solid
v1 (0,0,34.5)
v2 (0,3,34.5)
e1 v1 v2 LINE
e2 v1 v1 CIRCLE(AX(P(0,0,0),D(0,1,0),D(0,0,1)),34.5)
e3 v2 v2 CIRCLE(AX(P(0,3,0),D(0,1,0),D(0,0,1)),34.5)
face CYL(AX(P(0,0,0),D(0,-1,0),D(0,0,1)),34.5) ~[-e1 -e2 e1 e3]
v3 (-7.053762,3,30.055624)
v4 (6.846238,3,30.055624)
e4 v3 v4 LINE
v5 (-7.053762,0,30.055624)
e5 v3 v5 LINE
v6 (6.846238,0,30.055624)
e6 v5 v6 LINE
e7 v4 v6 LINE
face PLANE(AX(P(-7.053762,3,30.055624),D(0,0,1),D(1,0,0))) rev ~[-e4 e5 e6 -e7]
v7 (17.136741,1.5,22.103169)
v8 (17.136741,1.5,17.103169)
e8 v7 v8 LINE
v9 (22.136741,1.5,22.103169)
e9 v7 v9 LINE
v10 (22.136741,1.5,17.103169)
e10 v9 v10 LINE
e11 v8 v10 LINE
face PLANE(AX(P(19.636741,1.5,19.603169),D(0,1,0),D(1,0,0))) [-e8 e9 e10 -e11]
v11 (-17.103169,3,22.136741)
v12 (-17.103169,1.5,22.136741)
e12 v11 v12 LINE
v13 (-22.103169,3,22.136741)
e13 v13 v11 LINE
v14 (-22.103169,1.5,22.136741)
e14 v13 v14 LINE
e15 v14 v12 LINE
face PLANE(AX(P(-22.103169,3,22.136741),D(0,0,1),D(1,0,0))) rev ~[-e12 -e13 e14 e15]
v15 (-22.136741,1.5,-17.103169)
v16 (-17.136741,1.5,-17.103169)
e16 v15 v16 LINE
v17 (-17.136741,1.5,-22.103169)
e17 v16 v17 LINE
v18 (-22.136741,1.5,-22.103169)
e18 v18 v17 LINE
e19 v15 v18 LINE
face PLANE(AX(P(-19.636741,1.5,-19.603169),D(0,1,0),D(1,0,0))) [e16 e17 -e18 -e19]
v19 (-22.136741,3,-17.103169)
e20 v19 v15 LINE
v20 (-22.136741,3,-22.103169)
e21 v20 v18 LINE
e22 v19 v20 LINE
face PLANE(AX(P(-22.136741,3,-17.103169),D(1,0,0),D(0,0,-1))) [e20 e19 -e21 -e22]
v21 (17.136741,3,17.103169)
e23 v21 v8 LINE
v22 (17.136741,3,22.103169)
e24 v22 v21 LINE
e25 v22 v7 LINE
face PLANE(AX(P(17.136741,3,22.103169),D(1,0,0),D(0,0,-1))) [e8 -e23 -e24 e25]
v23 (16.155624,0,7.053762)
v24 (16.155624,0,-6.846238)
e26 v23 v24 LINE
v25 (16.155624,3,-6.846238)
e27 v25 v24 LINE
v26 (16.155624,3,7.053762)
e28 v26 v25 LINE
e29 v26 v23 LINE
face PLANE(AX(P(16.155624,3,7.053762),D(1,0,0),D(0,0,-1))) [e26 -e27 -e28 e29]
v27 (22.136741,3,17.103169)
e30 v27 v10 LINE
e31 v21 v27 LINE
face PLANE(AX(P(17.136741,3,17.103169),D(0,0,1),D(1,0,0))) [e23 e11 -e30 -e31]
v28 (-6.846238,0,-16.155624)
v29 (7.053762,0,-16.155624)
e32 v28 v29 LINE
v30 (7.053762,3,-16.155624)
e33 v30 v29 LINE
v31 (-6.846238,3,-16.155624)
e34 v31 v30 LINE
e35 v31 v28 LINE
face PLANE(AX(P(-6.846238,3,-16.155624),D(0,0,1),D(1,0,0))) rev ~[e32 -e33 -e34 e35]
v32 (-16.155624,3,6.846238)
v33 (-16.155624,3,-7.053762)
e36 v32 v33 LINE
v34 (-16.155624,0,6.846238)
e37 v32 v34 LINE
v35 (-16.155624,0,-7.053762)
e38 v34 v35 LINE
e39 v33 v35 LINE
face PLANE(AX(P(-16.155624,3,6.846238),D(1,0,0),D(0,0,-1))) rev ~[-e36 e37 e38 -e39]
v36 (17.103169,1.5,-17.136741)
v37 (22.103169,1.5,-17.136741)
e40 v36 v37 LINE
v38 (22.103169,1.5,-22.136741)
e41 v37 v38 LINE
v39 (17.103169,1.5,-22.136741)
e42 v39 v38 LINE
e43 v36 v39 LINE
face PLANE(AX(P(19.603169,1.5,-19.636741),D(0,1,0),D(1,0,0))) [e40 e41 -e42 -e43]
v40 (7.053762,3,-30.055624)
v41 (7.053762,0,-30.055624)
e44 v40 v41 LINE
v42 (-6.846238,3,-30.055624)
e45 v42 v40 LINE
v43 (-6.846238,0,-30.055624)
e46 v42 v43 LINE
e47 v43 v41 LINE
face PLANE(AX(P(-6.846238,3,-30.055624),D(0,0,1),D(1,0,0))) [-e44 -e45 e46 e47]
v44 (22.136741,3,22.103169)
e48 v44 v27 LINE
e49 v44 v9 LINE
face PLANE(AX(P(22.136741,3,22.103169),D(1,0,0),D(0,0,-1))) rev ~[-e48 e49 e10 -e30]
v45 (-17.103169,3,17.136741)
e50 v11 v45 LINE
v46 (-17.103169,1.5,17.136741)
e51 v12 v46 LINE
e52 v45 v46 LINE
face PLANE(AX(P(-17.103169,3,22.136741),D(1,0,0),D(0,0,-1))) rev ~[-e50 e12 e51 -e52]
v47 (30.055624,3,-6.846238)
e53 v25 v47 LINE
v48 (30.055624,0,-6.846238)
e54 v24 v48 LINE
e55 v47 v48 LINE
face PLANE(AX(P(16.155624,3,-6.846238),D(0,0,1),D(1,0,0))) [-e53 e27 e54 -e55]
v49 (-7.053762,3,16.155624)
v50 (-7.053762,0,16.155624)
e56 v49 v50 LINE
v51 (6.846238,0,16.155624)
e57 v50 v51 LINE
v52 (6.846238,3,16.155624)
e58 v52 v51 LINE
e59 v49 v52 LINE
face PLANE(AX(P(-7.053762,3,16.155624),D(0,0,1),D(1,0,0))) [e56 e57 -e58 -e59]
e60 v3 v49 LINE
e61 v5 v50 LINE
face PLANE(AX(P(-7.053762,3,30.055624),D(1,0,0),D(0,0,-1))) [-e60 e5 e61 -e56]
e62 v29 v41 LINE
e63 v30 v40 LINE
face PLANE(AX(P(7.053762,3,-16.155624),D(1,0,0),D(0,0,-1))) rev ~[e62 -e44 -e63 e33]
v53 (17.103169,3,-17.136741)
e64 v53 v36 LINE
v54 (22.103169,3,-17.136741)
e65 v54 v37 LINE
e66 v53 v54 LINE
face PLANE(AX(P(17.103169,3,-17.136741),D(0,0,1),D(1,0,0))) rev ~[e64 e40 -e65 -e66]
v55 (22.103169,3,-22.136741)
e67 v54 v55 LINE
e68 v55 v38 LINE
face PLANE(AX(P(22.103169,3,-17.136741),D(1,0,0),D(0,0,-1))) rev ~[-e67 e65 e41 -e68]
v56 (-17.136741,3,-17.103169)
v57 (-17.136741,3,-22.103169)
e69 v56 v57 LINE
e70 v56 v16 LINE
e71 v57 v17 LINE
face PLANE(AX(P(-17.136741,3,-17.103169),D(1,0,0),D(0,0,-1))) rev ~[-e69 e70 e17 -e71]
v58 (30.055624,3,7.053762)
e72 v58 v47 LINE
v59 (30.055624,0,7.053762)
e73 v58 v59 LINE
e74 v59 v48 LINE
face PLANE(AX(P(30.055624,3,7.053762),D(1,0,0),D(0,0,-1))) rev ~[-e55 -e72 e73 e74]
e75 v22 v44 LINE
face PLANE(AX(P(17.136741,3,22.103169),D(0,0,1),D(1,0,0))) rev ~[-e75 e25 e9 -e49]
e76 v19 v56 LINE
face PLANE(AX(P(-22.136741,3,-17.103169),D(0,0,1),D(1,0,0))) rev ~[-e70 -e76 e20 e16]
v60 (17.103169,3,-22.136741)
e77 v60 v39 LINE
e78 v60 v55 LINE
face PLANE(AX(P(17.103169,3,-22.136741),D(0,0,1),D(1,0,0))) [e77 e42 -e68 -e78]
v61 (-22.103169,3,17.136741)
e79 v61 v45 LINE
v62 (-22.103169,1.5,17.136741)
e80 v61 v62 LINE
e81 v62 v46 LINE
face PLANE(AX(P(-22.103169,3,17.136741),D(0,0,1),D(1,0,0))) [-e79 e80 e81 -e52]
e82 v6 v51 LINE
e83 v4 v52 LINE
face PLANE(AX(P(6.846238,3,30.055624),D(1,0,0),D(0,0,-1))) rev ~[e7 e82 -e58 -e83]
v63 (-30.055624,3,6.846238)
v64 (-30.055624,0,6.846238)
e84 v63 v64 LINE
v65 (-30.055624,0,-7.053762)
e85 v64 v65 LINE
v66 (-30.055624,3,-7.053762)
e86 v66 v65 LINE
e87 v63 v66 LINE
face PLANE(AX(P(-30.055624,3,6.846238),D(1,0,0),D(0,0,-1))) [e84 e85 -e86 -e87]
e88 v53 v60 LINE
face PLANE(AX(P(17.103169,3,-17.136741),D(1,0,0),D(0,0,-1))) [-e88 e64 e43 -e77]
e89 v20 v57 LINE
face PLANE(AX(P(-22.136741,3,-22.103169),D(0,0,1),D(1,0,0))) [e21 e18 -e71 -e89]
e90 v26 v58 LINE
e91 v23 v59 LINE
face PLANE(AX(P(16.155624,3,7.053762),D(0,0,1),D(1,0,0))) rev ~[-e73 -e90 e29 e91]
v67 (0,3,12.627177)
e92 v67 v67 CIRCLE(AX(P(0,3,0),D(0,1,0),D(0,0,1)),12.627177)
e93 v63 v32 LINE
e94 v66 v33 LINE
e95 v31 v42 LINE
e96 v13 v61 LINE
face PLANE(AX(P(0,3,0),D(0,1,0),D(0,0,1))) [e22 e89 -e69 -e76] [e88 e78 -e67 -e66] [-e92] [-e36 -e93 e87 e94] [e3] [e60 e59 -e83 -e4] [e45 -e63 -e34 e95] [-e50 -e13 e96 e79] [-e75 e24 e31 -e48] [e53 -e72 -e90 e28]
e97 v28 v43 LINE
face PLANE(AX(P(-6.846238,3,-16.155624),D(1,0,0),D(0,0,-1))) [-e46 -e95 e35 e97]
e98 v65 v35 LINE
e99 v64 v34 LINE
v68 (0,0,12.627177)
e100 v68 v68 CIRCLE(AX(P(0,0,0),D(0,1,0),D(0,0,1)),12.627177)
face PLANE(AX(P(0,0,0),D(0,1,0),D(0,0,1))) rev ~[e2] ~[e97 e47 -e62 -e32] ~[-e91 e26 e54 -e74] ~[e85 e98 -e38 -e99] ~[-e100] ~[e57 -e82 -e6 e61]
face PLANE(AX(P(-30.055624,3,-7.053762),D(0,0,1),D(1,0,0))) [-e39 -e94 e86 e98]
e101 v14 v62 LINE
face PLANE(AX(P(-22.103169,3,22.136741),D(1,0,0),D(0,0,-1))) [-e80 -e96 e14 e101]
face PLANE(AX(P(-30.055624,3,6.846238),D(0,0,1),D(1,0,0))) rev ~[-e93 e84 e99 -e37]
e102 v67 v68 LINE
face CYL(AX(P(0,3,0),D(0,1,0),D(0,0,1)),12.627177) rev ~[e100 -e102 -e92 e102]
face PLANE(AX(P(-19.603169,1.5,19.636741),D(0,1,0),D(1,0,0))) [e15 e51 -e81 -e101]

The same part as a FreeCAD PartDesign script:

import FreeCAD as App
import Part
import Sketcher

V = App.Vector
Q = App.Units.Quantity

doc = App.newDocument("Part")
params = doc.addObject("Spreadsheet::Sheet", "Params")
for row, (alias, value) in enumerate([
    ("sketch1_diameter", "69 mm"),
    ("pad1_length", "3 mm"),
    ("sketch2_width", "13.9 mm"),
    ("sketch4_width", "5 mm"),
    ("pocket3_length", "1.5 mm"),
], start=1):
    params.set(f"A{row}", alias)
    params.set(f"B{row}", "=" + value)
    params.setAlias(f"B{row}", alias)

body = doc.addObject("PartDesign::Body", "Body")

# Sketch on XZ plane
sketch1 = body.newObject("Sketcher::SketchObject", "Sketch")
sketch1.AttachmentSupport = (doc.getObject("XZ_Plane"), [""])
sketch1.MapMode = "FlatFace"
sketch1.addGeometry(Part.Circle(V(0, 0, 0), V(0, 0, 1), 34), False)
sketch1.addConstraint(Sketcher.Constraint("Coincident", 0, 3, -1, 1))
sketch1.addConstraint(Sketcher.Constraint("Diameter", 0, Q("69 mm")))
sketch1.setExpression("Constraints[1]", "Params.sketch1_diameter")
pad1 = body.newObject("PartDesign::Pad", "Pad")
pad1.Profile = sketch1
pad1.setExpression("Length", "Params.pad1_length")
pad1.Reversed = True

# Sketch on XZ plane
sketch2 = body.newObject("Sketcher::SketchObject", "Sketch001")
sketch2.AttachmentSupport = (doc.getObject("XZ_Plane"), [""])
sketch2.MapMode = "FlatFace"
sketch2.AttachmentOffset = App.Placement(V(0, 0, -3), App.Rotation())
sketch2.addGeometry(Part.LineSegment(V(16, -7, 0), V(16, 7, 0)), False)
sketch2.addGeometry(Part.LineSegment(V(16, 7, 0), V(30, 7, 0)), False)
sketch2.addGeometry(Part.LineSegment(V(30, 7, 0), V(30, -7, 0)), False)
sketch2.addGeometry(Part.LineSegment(V(30, -7, 0), V(16, -7, 0)), False)
sketch2.addGeometry(Part.LineSegment(V(-7, -30, 0), V(-7, -16, 0)), False)
sketch2.addGeometry(Part.LineSegment(V(-7, -16, 0), V(7, -16, 0)), False)
sketch2.addGeometry(Part.LineSegment(V(7, -16, 0), V(7, -30, 0)), False)
sketch2.addGeometry(Part.LineSegment(V(7, -30, 0), V(-7, -30, 0)), False)
sketch2.addGeometry(Part.LineSegment(V(-7, 16, 0), V(-7, 30, 0)), False)
sketch2.addGeometry(Part.LineSegment(V(-7, 30, 0), V(7, 30, 0)), False)
sketch2.addGeometry(Part.LineSegment(V(7, 30, 0), V(7, 16, 0)), False)
sketch2.addGeometry(Part.LineSegment(V(7, 16, 0), V(-7, 16, 0)), False)
sketch2.addGeometry(Part.LineSegment(V(-30, -7, 0), V(-30, 7, 0)), False)
sketch2.addGeometry(Part.LineSegment(V(-30, 7, 0), V(-16, 7, 0)), False)
sketch2.addGeometry(Part.LineSegment(V(-16, 7, 0), V(-16, -7, 0)), False)
sketch2.addGeometry(Part.LineSegment(V(-16, -7, 0), V(-30, -7, 0)), False)
sketch2.addConstraint(Sketcher.Constraint("Coincident", 0, 2, 1, 1))
sketch2.addConstraint(Sketcher.Constraint("Coincident", 1, 2, 2, 1))
sketch2.addConstraint(Sketcher.Constraint("Coincident", 2, 2, 3, 1))
sketch2.addConstraint(Sketcher.Constraint("Coincident", 3, 2, 0, 1))
sketch2.addConstraint(Sketcher.Constraint("Coincident", 4, 2, 5, 1))
sketch2.addConstraint(Sketcher.Constraint("Coincident", 5, 2, 6, 1))
sketch2.addConstraint(Sketcher.Constraint("Coincident", 6, 2, 7, 1))
sketch2.addConstraint(Sketcher.Constraint("Coincident", 7, 2, 4, 1))
sketch2.addConstraint(Sketcher.Constraint("Coincident", 8, 2, 9, 1))
sketch2.addConstraint(Sketcher.Constraint("Coincident", 9, 2, 10, 1))
sketch2.addConstraint(Sketcher.Constraint("Coincident", 10, 2, 11, 1))
sketch2.addConstraint(Sketcher.Constraint("Coincident", 11, 2, 8, 1))
sketch2.addConstraint(Sketcher.Constraint("Coincident", 12, 2, 13, 1))
sketch2.addConstraint(Sketcher.Constraint("Coincident", 13, 2, 14, 1))
sketch2.addConstraint(Sketcher.Constraint("Coincident", 14, 2, 15, 1))
sketch2.addConstraint(Sketcher.Constraint("Coincident", 15, 2, 12, 1))
sketch2.addConstraint(Sketcher.Constraint("Vertical", 0))
sketch2.addConstraint(Sketcher.Constraint("Horizontal", 1))
sketch2.addConstraint(Sketcher.Constraint("Vertical", 2))
sketch2.addConstraint(Sketcher.Constraint("Horizontal", 3))
sketch2.addConstraint(Sketcher.Constraint("Vertical", 4))
sketch2.addConstraint(Sketcher.Constraint("Horizontal", 5))
sketch2.addConstraint(Sketcher.Constraint("Vertical", 6))
sketch2.addConstraint(Sketcher.Constraint("Horizontal", 7))
sketch2.addConstraint(Sketcher.Constraint("Vertical", 8))
sketch2.addConstraint(Sketcher.Constraint("Horizontal", 9))
sketch2.addConstraint(Sketcher.Constraint("Vertical", 10))
sketch2.addConstraint(Sketcher.Constraint("Horizontal", 11))
sketch2.addConstraint(Sketcher.Constraint("Vertical", 12))
sketch2.addConstraint(Sketcher.Constraint("Horizontal", 13))
sketch2.addConstraint(Sketcher.Constraint("Vertical", 14))
sketch2.addConstraint(Sketcher.Constraint("Horizontal", 15))
sketch2.addConstraint(Sketcher.Constraint("Symmetric", 6, 2, 8, 2, -1, 1))
sketch2.addConstraint(Sketcher.Constraint("Symmetric", 4, 2, 10, 2, -1, 1))
sketch2.addConstraint(Sketcher.Constraint("Symmetric", 2, 2, 12, 2, -1, 1))
sketch2.addConstraint(Sketcher.Constraint("Symmetric", 0, 2, 14, 2, -1, 1))
sketch2.addConstraint(Sketcher.Constraint("Equal", 3, 5))
sketch2.addConstraint(Sketcher.Constraint("Equal", 15, 0))
sketch2.addConstraint(Sketcher.Constraint("Equal", 2, 4))
sketch2.addConstraint(Sketcher.Constraint("DistanceX", 1, 1, 1, 2, Q("13.9 mm")))
sketch2.addConstraint(Sketcher.Constraint("DistanceY", -1, 1, 0, 2, Q("7.053762 mm")))
sketch2.addConstraint(Sketcher.Constraint("DistanceX", 4, 2, -1, 1, Q("6.846238 mm")))
sketch2.addConstraint(Sketcher.Constraint("DistanceY", 4, 2, 8, 2, Q("46.211249 mm")))
sketch2.addConstraint(Sketcher.Constraint("DistanceX", -1, 1, 0, 2, Q("16.155624 mm")))
sketch2.setExpression("Constraints[39]", "Params.sketch2_width")
pocket1 = body.newObject("PartDesign::Pocket", "Pocket")
pocket1.Profile = sketch2
pocket1.Type = "ThroughAll"
pocket1.Reversed = True

# Sketch on XZ plane
sketch3 = body.newObject("Sketcher::SketchObject", "Sketch002")
sketch3.AttachmentSupport = (doc.getObject("XZ_Plane"), [""])
sketch3.MapMode = "FlatFace"
sketch3.AttachmentOffset = App.Placement(V(0, 0, -3), App.Rotation())
sketch3.addGeometry(Part.Circle(V(0, 0, 0), V(0, 0, 1), 13), False)
sketch3.addConstraint(Sketcher.Constraint("Coincident", 0, 3, -1, 1))
sketch3.addConstraint(Sketcher.Constraint("Diameter", 0, Q("25.254355 mm")))
pocket2 = body.newObject("PartDesign::Pocket", "Pocket001")
pocket2.Profile = sketch3
pocket2.Type = "ThroughAll"
pocket2.Reversed = True

# Sketch on XZ plane
sketch4 = body.newObject("Sketcher::SketchObject", "Sketch003")
sketch4.AttachmentSupport = (doc.getObject("XZ_Plane"), [""])
sketch4.MapMode = "FlatFace"
sketch4.AttachmentOffset = App.Placement(V(0, 0, -3), App.Rotation())
sketch4.addGeometry(Part.LineSegment(V(17, -22, 0), V(17, -17, 0)), False)
sketch4.addGeometry(Part.LineSegment(V(17, -17, 0), V(22, -17, 0)), False)
sketch4.addGeometry(Part.LineSegment(V(22, -17, 0), V(22, -22, 0)), False)
sketch4.addGeometry(Part.LineSegment(V(22, -22, 0), V(17, -22, 0)), False)
sketch4.addGeometry(Part.LineSegment(V(-22, -22, 0), V(-22, -17, 0)), False)
sketch4.addGeometry(Part.LineSegment(V(-22, -17, 0), V(-17, -17, 0)), False)
sketch4.addGeometry(Part.LineSegment(V(-17, -17, 0), V(-17, -22, 0)), False)
sketch4.addGeometry(Part.LineSegment(V(-17, -22, 0), V(-22, -22, 0)), False)
sketch4.addGeometry(Part.LineSegment(V(17, 17, 0), V(17, 22, 0)), False)
sketch4.addGeometry(Part.LineSegment(V(17, 22, 0), V(22, 22, 0)), False)
sketch4.addGeometry(Part.LineSegment(V(22, 22, 0), V(22, 17, 0)), False)
sketch4.addGeometry(Part.LineSegment(V(22, 17, 0), V(17, 17, 0)), False)
sketch4.addGeometry(Part.LineSegment(V(-22, 17, 0), V(-22, 22, 0)), False)
sketch4.addGeometry(Part.LineSegment(V(-22, 22, 0), V(-17, 22, 0)), False)
sketch4.addGeometry(Part.LineSegment(V(-17, 22, 0), V(-17, 17, 0)), False)
sketch4.addGeometry(Part.LineSegment(V(-17, 17, 0), V(-22, 17, 0)), False)
sketch4.addConstraint(Sketcher.Constraint("Coincident", 0, 2, 1, 1))
sketch4.addConstraint(Sketcher.Constraint("Coincident", 1, 2, 2, 1))
sketch4.addConstraint(Sketcher.Constraint("Coincident", 2, 2, 3, 1))
sketch4.addConstraint(Sketcher.Constraint("Coincident", 3, 2, 0, 1))
sketch4.addConstraint(Sketcher.Constraint("Coincident", 4, 2, 5, 1))
sketch4.addConstraint(Sketcher.Constraint("Coincident", 5, 2, 6, 1))
sketch4.addConstraint(Sketcher.Constraint("Coincident", 6, 2, 7, 1))
sketch4.addConstraint(Sketcher.Constraint("Coincident", 7, 2, 4, 1))
sketch4.addConstraint(Sketcher.Constraint("Coincident", 8, 2, 9, 1))
sketch4.addConstraint(Sketcher.Constraint("Coincident", 9, 2, 10, 1))
sketch4.addConstraint(Sketcher.Constraint("Coincident", 10, 2, 11, 1))
sketch4.addConstraint(Sketcher.Constraint("Coincident", 11, 2, 8, 1))
sketch4.addConstraint(Sketcher.Constraint("Coincident", 12, 2, 13, 1))
sketch4.addConstraint(Sketcher.Constraint("Coincident", 13, 2, 14, 1))
sketch4.addConstraint(Sketcher.Constraint("Coincident", 14, 2, 15, 1))
sketch4.addConstraint(Sketcher.Constraint("Coincident", 15, 2, 12, 1))
sketch4.addConstraint(Sketcher.Constraint("Vertical", 0))
sketch4.addConstraint(Sketcher.Constraint("Horizontal", 1))
sketch4.addConstraint(Sketcher.Constraint("Vertical", 2))
sketch4.addConstraint(Sketcher.Constraint("Horizontal", 3))
sketch4.addConstraint(Sketcher.Constraint("Vertical", 4))
sketch4.addConstraint(Sketcher.Constraint("Horizontal", 5))
sketch4.addConstraint(Sketcher.Constraint("Vertical", 6))
sketch4.addConstraint(Sketcher.Constraint("Horizontal", 7))
sketch4.addConstraint(Sketcher.Constraint("Vertical", 8))
sketch4.addConstraint(Sketcher.Constraint("Horizontal", 9))
sketch4.addConstraint(Sketcher.Constraint("Vertical", 10))
sketch4.addConstraint(Sketcher.Constraint("Horizontal", 11))
sketch4.addConstraint(Sketcher.Constraint("Vertical", 12))
sketch4.addConstraint(Sketcher.Constraint("Horizontal", 13))
sketch4.addConstraint(Sketcher.Constraint("Vertical", 14))
sketch4.addConstraint(Sketcher.Constraint("Horizontal", 15))
sketch4.addConstraint(Sketcher.Constraint("Symmetric", 6, 2, 8, 2, -1, 1))
sketch4.addConstraint(Sketcher.Constraint("Symmetric", 4, 2, 10, 2, -1, 1))
sketch4.addConstraint(Sketcher.Constraint("Symmetric", 2, 2, 12, 2, -1, 1))
sketch4.addConstraint(Sketcher.Constraint("Symmetric", 0, 2, 14, 2, -1, 1))
sketch4.addConstraint(Sketcher.Constraint("Equal", 3, 5))
sketch4.addConstraint(Sketcher.Constraint("Equal", 15, 0))
sketch4.addConstraint(Sketcher.Constraint("Equal", 2, 4))
sketch4.addConstraint(Sketcher.Constraint("DistanceX", 1, 1, 1, 2, Q("5 mm")))
sketch4.addConstraint(Sketcher.Constraint("DistanceX", -1, 1, 0, 2, Q("17.103169 mm")))
sketch4.addConstraint(Sketcher.Constraint("DistanceY", 0, 2, -1, 1, Q("17.136741 mm")))
sketch4.addConstraint(Sketcher.Constraint("DistanceX", 4, 2, -1, 1, Q("22.136741 mm")))
sketch4.addConstraint(Sketcher.Constraint("DistanceY", 4, 2, -1, 1, Q("17.103169 mm")))
sketch4.setExpression("Constraints[39]", "Params.sketch4_width")
pocket3 = body.newObject("PartDesign::Pocket", "Pocket002")
pocket3.Profile = sketch4
pocket3.setExpression("Length", "Params.pocket3_length")
pocket3.Reversed = True

doc.recompute()
